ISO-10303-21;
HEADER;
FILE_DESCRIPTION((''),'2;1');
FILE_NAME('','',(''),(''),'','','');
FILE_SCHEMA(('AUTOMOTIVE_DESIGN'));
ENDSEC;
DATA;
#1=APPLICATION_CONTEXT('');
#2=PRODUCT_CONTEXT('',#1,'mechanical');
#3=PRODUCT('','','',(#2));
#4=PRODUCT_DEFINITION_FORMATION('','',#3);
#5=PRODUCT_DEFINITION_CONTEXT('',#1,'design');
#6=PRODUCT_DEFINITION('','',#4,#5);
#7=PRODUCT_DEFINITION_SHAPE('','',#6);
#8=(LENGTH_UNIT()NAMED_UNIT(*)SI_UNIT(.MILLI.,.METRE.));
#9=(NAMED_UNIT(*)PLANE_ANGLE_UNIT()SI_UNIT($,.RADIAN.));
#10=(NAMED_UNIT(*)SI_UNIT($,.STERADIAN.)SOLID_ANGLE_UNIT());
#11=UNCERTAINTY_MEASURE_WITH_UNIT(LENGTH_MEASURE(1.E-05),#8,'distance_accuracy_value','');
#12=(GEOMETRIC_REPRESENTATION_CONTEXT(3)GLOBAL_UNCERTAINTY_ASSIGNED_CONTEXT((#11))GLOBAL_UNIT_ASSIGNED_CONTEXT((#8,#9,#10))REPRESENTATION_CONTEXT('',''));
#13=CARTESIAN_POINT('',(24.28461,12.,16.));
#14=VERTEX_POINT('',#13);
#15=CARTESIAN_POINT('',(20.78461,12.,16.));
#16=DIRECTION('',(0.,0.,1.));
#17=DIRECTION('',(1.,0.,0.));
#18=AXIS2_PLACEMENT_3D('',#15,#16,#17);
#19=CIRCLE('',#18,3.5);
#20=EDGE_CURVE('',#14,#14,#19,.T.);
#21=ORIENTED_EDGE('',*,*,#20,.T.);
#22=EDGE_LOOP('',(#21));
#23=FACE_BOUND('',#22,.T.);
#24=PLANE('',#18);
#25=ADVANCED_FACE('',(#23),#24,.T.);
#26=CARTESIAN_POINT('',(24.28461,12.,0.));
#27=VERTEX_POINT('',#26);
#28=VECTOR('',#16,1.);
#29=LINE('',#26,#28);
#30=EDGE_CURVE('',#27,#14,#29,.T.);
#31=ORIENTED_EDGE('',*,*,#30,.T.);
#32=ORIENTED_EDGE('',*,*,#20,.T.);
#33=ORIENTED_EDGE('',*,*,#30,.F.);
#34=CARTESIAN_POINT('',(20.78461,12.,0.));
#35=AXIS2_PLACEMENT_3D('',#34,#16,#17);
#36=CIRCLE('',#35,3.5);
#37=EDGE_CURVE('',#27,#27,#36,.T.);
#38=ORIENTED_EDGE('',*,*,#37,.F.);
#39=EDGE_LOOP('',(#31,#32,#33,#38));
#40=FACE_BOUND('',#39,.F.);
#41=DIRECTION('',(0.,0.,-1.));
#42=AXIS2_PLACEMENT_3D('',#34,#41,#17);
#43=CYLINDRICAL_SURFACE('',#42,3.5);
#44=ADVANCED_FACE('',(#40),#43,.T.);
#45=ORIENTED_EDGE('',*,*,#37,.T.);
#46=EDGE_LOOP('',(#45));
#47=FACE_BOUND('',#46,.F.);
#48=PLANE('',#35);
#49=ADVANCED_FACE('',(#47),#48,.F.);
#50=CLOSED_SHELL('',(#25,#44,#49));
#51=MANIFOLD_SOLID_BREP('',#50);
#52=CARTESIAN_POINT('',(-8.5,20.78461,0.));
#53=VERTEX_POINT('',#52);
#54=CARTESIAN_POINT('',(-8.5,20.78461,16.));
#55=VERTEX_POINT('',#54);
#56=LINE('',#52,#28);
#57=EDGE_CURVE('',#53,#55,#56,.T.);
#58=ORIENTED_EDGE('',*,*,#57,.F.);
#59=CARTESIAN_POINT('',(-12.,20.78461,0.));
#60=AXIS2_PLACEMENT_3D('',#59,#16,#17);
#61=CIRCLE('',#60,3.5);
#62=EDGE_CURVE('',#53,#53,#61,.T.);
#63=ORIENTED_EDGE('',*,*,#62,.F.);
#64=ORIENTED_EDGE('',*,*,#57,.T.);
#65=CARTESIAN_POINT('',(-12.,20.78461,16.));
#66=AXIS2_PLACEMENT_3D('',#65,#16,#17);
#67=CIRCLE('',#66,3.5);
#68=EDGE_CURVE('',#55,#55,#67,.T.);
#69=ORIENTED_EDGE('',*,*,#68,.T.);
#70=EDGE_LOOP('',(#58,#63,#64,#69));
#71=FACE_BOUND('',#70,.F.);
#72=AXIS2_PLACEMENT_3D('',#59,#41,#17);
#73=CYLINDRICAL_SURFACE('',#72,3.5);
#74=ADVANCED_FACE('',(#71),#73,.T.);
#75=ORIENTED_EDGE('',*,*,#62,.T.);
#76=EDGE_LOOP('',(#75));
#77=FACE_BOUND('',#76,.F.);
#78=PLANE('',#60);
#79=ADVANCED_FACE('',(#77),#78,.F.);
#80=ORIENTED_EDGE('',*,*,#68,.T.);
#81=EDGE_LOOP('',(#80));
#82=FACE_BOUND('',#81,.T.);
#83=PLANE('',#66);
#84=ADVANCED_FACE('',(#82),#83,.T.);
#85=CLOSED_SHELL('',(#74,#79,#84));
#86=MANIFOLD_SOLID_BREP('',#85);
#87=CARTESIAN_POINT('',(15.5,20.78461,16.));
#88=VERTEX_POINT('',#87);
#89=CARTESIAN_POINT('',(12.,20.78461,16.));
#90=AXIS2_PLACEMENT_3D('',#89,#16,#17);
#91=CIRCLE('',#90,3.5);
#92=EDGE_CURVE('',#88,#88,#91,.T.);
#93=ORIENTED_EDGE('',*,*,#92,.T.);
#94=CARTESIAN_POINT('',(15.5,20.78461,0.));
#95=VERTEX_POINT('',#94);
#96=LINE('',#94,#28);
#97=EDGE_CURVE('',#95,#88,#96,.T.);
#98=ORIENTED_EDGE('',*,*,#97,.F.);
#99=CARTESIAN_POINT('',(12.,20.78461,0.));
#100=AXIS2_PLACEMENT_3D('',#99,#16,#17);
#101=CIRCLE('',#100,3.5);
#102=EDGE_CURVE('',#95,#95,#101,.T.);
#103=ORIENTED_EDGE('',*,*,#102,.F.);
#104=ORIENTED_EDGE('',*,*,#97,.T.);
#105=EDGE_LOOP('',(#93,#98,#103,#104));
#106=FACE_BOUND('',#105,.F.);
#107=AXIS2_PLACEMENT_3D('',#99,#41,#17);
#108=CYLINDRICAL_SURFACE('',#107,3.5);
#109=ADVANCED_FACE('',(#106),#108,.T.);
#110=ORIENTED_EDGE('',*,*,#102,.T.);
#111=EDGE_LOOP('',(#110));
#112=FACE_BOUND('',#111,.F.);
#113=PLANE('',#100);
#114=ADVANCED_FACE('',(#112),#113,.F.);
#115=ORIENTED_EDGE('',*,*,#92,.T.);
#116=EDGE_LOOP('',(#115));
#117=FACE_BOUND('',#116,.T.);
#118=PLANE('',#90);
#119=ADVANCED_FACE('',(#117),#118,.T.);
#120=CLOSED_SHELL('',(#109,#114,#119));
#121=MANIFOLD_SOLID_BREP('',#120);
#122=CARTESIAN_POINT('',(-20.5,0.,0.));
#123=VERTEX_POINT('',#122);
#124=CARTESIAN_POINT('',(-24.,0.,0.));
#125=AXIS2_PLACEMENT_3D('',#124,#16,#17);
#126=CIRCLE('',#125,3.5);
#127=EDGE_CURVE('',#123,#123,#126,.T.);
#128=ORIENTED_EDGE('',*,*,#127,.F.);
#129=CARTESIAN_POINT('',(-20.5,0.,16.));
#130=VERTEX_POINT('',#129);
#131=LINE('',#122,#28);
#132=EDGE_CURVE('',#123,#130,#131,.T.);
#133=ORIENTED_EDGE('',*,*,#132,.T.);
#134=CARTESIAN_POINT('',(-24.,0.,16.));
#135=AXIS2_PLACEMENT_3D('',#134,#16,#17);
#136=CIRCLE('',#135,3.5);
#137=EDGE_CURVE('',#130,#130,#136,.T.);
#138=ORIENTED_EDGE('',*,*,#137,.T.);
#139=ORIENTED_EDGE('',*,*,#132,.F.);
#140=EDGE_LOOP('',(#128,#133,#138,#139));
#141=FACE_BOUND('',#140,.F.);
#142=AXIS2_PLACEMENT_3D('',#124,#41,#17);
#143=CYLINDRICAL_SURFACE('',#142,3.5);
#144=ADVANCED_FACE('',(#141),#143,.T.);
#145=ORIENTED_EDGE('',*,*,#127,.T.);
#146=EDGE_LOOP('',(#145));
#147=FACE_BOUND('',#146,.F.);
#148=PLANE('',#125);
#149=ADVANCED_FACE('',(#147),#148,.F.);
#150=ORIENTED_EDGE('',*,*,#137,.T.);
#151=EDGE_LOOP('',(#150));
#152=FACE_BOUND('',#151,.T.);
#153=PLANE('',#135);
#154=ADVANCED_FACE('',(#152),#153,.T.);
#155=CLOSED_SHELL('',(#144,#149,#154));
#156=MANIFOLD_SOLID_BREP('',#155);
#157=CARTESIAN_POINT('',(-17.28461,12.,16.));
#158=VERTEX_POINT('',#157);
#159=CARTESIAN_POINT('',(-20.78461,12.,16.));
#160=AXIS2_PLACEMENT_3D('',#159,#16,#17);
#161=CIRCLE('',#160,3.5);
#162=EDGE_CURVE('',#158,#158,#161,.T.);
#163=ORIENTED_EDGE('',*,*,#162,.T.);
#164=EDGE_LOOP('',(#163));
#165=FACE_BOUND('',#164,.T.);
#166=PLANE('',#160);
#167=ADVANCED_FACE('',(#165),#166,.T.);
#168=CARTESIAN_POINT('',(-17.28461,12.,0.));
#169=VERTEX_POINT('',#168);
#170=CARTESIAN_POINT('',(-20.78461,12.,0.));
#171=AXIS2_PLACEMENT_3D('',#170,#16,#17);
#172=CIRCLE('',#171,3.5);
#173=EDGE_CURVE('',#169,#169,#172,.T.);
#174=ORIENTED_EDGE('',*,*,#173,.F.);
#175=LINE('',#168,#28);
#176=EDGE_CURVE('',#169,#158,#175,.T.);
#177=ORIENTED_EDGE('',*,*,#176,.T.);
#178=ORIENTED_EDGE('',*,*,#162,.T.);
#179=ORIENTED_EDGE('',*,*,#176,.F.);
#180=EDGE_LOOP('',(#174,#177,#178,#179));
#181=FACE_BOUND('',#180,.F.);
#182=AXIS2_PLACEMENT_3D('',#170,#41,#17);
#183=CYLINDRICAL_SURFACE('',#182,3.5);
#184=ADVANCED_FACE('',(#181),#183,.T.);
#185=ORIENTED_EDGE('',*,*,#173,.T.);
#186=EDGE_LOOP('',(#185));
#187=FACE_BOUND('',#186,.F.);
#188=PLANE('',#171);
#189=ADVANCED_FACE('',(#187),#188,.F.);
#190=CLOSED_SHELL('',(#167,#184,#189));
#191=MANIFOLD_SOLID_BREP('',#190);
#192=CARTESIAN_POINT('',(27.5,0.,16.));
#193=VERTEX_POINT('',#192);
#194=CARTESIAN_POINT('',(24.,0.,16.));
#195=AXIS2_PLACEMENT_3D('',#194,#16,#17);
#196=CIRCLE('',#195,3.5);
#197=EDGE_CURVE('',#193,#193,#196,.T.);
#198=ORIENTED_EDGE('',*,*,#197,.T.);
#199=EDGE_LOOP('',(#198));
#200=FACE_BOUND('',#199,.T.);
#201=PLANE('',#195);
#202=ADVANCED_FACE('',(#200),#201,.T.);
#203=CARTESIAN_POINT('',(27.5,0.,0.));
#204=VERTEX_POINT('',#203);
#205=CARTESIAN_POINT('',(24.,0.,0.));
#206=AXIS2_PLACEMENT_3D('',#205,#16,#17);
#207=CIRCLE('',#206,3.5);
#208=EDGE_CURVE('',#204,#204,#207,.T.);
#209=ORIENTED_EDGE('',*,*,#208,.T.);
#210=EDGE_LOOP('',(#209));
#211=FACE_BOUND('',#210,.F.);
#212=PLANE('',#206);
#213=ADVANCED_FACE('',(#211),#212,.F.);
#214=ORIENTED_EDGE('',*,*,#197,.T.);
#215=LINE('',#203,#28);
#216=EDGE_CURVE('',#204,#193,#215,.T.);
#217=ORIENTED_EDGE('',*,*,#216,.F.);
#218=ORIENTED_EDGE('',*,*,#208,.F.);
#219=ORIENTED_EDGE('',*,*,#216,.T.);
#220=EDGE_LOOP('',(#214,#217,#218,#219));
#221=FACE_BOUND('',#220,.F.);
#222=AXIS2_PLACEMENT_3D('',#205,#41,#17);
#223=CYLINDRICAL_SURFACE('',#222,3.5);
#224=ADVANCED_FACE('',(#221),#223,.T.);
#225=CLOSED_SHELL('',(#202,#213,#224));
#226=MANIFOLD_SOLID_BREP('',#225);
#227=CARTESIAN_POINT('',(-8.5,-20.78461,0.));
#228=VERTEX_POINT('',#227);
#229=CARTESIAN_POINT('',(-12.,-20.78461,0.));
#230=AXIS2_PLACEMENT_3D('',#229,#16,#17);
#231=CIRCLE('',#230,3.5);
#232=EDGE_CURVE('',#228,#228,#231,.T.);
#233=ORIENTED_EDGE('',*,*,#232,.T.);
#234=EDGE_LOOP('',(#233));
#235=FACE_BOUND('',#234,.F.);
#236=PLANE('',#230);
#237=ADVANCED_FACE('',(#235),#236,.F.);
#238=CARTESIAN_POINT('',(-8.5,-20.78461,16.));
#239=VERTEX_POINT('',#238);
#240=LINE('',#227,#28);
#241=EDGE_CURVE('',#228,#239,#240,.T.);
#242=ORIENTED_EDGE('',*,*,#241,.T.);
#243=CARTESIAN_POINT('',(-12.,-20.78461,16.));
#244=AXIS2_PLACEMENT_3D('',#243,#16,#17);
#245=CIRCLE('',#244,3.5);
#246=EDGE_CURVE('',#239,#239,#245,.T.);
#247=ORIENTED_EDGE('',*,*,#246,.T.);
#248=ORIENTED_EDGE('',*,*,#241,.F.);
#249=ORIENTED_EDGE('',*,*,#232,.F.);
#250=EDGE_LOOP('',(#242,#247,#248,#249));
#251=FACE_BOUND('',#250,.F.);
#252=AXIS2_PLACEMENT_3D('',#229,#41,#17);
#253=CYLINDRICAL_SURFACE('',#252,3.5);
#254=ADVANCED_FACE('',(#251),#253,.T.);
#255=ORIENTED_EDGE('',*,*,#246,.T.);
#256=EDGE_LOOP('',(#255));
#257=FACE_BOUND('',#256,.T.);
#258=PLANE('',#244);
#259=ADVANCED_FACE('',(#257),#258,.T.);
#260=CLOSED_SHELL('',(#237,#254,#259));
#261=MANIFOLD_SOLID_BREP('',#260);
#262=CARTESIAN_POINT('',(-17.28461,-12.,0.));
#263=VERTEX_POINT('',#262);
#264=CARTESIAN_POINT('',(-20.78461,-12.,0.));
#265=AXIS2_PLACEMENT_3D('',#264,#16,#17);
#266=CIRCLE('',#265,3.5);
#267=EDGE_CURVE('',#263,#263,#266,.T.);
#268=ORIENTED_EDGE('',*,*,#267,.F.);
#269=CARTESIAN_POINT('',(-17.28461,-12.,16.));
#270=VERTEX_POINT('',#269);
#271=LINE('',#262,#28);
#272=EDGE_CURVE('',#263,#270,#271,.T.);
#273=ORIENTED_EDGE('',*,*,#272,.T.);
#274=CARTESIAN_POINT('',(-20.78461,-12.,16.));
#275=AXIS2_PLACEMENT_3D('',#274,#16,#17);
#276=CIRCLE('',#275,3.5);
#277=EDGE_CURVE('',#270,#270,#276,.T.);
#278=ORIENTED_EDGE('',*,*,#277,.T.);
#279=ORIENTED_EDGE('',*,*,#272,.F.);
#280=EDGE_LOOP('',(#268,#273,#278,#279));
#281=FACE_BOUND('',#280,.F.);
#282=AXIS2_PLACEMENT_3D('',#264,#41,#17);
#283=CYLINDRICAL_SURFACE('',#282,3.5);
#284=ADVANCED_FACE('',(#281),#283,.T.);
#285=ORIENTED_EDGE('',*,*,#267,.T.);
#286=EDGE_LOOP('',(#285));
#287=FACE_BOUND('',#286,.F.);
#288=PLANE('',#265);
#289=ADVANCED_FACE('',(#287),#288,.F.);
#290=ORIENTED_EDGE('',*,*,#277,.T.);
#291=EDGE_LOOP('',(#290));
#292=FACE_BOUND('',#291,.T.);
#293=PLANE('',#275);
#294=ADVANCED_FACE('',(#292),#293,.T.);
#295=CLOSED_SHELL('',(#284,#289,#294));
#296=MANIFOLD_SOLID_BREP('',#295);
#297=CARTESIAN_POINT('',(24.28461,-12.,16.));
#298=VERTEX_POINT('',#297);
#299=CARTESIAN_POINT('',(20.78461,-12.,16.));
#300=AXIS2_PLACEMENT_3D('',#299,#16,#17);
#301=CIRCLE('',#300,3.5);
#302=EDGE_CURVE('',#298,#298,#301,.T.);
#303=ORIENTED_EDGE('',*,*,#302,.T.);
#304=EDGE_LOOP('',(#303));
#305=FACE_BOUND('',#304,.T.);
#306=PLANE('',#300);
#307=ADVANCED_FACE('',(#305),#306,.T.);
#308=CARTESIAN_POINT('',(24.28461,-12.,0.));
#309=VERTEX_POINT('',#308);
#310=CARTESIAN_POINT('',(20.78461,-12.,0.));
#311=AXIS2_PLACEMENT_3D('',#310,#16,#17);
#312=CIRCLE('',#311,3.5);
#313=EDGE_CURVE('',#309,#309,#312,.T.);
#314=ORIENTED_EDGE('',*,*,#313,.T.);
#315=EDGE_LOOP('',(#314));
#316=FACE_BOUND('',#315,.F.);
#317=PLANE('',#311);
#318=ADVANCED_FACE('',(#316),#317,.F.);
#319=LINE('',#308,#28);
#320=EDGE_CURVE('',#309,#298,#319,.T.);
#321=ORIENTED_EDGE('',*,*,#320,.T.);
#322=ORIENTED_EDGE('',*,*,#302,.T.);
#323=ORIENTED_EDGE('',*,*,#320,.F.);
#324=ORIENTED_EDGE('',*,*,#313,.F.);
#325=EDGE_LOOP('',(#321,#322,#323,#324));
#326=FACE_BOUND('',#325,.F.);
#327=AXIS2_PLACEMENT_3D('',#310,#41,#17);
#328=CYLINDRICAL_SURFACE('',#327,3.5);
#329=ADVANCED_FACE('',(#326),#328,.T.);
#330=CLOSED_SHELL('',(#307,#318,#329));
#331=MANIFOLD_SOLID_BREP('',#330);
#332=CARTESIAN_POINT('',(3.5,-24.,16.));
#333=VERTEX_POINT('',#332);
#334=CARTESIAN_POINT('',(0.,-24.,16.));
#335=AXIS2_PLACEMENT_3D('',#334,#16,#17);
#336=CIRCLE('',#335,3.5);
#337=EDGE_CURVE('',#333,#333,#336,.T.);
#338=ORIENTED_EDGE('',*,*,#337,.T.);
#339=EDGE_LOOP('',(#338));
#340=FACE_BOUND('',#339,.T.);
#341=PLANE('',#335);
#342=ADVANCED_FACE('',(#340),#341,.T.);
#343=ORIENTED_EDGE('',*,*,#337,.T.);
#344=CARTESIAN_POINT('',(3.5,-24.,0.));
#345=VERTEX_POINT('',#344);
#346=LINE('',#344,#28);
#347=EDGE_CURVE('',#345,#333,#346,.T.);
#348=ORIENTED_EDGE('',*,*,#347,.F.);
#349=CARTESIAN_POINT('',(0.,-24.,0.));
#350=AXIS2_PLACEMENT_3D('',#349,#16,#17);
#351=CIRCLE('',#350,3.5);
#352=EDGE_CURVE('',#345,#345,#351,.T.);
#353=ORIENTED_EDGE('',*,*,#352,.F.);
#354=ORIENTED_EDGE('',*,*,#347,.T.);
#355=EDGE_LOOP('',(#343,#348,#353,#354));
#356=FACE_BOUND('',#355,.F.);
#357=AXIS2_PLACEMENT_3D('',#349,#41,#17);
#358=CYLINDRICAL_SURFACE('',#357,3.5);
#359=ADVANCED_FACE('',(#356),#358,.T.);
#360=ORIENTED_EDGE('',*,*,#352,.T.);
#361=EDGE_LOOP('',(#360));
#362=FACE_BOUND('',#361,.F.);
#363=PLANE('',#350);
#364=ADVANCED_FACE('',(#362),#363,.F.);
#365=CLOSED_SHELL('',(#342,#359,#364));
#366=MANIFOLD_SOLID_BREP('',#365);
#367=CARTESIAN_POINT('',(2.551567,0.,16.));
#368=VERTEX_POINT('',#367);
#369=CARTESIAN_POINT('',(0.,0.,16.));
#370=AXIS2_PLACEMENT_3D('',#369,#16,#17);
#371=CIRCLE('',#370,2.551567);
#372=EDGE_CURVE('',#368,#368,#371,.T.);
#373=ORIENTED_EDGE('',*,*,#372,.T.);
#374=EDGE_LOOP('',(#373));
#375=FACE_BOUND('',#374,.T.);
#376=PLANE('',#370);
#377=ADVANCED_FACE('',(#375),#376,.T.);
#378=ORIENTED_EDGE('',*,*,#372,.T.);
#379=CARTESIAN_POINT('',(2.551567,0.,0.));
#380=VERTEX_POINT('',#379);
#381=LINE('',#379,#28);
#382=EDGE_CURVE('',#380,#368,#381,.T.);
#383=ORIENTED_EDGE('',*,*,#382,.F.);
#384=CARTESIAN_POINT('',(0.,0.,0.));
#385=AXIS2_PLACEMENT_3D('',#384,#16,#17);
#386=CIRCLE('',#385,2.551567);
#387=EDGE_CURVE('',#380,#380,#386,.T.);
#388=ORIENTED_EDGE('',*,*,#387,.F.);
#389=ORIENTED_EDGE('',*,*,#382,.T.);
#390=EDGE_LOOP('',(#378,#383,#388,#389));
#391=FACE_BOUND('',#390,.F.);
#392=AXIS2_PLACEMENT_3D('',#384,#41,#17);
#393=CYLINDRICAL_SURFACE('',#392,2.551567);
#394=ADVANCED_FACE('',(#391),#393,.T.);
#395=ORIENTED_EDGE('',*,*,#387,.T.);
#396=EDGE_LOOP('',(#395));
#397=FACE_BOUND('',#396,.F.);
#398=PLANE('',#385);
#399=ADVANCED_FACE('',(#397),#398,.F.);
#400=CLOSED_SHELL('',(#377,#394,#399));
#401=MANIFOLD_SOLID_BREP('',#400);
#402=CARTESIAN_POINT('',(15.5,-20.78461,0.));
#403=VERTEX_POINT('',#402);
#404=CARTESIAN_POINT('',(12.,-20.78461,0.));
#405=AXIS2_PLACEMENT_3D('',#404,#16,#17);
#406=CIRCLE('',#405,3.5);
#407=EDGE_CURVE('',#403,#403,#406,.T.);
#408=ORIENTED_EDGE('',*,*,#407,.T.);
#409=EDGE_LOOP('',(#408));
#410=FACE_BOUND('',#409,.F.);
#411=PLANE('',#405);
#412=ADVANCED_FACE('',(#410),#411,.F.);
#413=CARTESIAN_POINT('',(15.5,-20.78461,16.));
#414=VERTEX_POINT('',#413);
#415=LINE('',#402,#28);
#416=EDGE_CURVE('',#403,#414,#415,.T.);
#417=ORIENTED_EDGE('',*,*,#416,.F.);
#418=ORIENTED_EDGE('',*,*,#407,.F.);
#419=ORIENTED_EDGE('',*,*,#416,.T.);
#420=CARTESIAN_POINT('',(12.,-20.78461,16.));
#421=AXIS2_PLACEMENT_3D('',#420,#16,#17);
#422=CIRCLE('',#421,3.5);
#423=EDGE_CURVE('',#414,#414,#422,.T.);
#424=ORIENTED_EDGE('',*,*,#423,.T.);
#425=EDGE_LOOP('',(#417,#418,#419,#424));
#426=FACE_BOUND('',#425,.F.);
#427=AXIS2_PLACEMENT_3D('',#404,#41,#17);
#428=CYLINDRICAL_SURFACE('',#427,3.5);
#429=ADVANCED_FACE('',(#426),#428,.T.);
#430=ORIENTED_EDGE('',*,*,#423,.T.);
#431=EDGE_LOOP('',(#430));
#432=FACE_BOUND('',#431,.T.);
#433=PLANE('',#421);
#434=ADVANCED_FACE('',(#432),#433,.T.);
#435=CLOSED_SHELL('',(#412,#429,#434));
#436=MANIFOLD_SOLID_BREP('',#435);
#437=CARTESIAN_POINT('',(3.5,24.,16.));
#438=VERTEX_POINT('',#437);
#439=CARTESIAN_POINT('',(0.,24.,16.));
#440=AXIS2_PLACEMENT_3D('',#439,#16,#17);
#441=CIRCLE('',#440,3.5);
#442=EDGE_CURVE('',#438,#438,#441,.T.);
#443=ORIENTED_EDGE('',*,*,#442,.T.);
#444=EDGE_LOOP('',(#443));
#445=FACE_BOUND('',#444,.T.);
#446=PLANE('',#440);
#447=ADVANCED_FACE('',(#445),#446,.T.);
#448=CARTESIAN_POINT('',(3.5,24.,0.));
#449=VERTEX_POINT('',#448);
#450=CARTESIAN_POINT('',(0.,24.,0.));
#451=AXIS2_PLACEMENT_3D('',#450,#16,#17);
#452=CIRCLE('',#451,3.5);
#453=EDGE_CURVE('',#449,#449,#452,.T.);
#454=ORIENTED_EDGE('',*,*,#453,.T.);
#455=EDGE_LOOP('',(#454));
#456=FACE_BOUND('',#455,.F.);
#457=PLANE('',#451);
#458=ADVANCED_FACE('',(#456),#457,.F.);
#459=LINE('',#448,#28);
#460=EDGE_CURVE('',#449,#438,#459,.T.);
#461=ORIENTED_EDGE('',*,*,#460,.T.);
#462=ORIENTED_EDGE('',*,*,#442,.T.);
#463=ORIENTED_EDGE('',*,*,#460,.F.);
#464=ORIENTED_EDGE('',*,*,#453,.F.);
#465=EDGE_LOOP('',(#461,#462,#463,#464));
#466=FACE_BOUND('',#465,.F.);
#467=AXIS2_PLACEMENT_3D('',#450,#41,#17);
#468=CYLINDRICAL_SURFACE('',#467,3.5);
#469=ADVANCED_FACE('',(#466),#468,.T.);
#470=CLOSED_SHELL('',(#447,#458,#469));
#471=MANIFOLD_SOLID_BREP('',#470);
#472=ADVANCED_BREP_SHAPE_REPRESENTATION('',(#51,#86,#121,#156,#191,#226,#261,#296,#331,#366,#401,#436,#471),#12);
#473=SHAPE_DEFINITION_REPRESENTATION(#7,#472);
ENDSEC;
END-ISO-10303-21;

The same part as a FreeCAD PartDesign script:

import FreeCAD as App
import Part
import Sketcher
from FreeCAD import Vector

doc = App.newDocument("Part")
params = doc.addObject("Spreadsheet::Sheet", "Params")
for row, (alias, value) in enumerate([
    ("sketch1_diameter", "7 mm"),
    ("pad1_length", "16 mm"),
], start=1):
    params.set(f"A{row}", alias)
    params.set(f"B{row}", "=" + value)
    params.setAlias(f"B{row}", alias)

body = doc.addObject("PartDesign::Body", "Body")
body.AllowCompound = True

# Sketch on XY plane
sketch1 = body.newObject("Sketcher::SketchObject", "Sketch")
sketch1.AttachmentSupport = (doc.getObject("XY_Plane"), [""])
sketch1.MapMode = "FlatFace"
sketch1.addGeometry(Part.Circle(Vector(20.8, 12, 0), Vector(0, 0, 1), 3.5), False)
sketch1.addGeometry(Part.Circle(Vector(24, 0, 0), Vector(0, 0, 1), 3.5), False)
sketch1.addGeometry(Part.Circle(Vector(12, 20.8, 0), Vector(0, 0, 1), 3.5), False)
sketch1.addGeometry(Part.Circle(Vector(20.8, -12, 0), Vector(0, 0, 1), 3.5), False)
sketch1.addGeometry(Part.Circle(Vector(12, -20.8, 0), Vector(0, 0, 1), 3.5), False)
sketch1.addGeometry(Part.Circle(Vector(0, -24, 0), Vector(0, 0, 1), 3.5), False)
sketch1.addGeometry(Part.Circle(Vector(-12, -20.8, 0), Vector(0, 0, 1), 3.5), False)
sketch1.addGeometry(Part.Circle(Vector(-20.8, -12, 0), Vector(0, 0, 1), 3.5), False)
sketch1.addGeometry(Part.Circle(Vector(-24, 0, 0), Vector(0, 0, 1), 3.5), False)
sketch1.addGeometry(Part.Circle(Vector(-20.8, 12, 0), Vector(0, 0, 1), 3.5), False)
sketch1.addGeometry(Part.Circle(Vector(-12, 20.8, 0), Vector(0, 0, 1), 3.5), False)
sketch1.addGeometry(Part.Circle(Vector(0, 24, 0), Vector(0, 0, 1), 3.5), False)
sketch1.addGeometry(Part.Circle(Vector(0, 0, 0), Vector(0, 0, 1), 2.6), False)
sketch1.addConstraint(Sketcher.Constraint("Coincident", 12, 3, -1, 1))
sketch1.addConstraint(Sketcher.Constraint("Equal", 0, 1))
sketch1.addConstraint(Sketcher.Constraint("Equal", 1, 2))
sketch1.addConstraint(Sketcher.Constraint("Equal", 2, 3))
sketch1.addConstraint(Sketcher.Constraint("Equal", 3, 4))
sketch1.addConstraint(Sketcher.Constraint("Equal", 4, 5))
sketch1.addConstraint(Sketcher.Constraint("Equal", 5, 6))
sketch1.addConstraint(Sketcher.Constraint("Equal", 6, 7))
sketch1.addConstraint(Sketcher.Constraint("Equal", 7, 8))
sketch1.addConstraint(Sketcher.Constraint("Equal", 8, 9))
sketch1.addConstraint(Sketcher.Constraint("Equal", 9, 10))
sketch1.addConstraint(Sketcher.Constraint("Equal", 10, 11))
sketch1.addConstraint(Sketcher.Constraint("Symmetric", 2, 3, 6, 3, -1, 1))
sketch1.addConstraint(Sketcher.Constraint("Symmetric", 0, 3, 7, 3, -1, 1))
sketch1.addConstraint(Sketcher.Constraint("Symmetric", 1, 3, 8, 3, -1, 1))
sketch1.addConstraint(Sketcher.Constraint("Symmetric", 3, 3, 9, 3, -1, 1))
sketch1.addConstraint(Sketcher.Constraint("Symmetric", 4, 3, 10, 3, -1, 1))
sketch1.addConstraint(Sketcher.Constraint("Symmetric", 5, 3, 11, 3, -1, 1))
sketch1.addConstraint(Sketcher.Constraint("Symmetric", 4, 3, 6, 3, -2))
sketch1.addConstraint(Sketcher.Constraint("Symmetric", 3, 3, 7, 3, -2))
sketch1.addConstraint(Sketcher.Constraint("PointOnObject", 1, 3, -1))
sketch1.addConstraint(Sketcher.Constraint("PointOnObject", 5, 3, -2))
sketch1.addConstraint(Sketcher.Constraint("Diameter", 0, 7.0))
sketch1.addConstraint(Sketcher.Constraint("DistanceY", -1, 1, 0, 3, 12.0))
sketch1.addConstraint(Sketcher.Constraint("DistanceX", -1, 1, 1, 3, 24.0))
sketch1.addConstraint(Sketcher.Constraint("DistanceX", -1, 1, 2, 3, 12.0))
sketch1.addConstraint(Sketcher.Constraint("DistanceY", 5, 3, -1, 1, 24.0))
sketch1.addConstraint(Sketcher.Constraint("Diameter", 12, 5.103134))
sketch1.addConstraint(Sketcher.Constraint("DistanceX", -1, 1, 0, 3, 20.78461))
sketch1.addConstraint(Sketcher.Constraint("DistanceY", -1, 1, 2, 3, 20.78461))
sketch1.setExpression("Constraints[22]", "Params.sketch1_diameter")
pad1 = body.newObject("PartDesign::Pad", "Pad")
pad1.Profile = sketch1
pad1.setExpression("Length", "Params.pad1_length")

doc.recompute()
